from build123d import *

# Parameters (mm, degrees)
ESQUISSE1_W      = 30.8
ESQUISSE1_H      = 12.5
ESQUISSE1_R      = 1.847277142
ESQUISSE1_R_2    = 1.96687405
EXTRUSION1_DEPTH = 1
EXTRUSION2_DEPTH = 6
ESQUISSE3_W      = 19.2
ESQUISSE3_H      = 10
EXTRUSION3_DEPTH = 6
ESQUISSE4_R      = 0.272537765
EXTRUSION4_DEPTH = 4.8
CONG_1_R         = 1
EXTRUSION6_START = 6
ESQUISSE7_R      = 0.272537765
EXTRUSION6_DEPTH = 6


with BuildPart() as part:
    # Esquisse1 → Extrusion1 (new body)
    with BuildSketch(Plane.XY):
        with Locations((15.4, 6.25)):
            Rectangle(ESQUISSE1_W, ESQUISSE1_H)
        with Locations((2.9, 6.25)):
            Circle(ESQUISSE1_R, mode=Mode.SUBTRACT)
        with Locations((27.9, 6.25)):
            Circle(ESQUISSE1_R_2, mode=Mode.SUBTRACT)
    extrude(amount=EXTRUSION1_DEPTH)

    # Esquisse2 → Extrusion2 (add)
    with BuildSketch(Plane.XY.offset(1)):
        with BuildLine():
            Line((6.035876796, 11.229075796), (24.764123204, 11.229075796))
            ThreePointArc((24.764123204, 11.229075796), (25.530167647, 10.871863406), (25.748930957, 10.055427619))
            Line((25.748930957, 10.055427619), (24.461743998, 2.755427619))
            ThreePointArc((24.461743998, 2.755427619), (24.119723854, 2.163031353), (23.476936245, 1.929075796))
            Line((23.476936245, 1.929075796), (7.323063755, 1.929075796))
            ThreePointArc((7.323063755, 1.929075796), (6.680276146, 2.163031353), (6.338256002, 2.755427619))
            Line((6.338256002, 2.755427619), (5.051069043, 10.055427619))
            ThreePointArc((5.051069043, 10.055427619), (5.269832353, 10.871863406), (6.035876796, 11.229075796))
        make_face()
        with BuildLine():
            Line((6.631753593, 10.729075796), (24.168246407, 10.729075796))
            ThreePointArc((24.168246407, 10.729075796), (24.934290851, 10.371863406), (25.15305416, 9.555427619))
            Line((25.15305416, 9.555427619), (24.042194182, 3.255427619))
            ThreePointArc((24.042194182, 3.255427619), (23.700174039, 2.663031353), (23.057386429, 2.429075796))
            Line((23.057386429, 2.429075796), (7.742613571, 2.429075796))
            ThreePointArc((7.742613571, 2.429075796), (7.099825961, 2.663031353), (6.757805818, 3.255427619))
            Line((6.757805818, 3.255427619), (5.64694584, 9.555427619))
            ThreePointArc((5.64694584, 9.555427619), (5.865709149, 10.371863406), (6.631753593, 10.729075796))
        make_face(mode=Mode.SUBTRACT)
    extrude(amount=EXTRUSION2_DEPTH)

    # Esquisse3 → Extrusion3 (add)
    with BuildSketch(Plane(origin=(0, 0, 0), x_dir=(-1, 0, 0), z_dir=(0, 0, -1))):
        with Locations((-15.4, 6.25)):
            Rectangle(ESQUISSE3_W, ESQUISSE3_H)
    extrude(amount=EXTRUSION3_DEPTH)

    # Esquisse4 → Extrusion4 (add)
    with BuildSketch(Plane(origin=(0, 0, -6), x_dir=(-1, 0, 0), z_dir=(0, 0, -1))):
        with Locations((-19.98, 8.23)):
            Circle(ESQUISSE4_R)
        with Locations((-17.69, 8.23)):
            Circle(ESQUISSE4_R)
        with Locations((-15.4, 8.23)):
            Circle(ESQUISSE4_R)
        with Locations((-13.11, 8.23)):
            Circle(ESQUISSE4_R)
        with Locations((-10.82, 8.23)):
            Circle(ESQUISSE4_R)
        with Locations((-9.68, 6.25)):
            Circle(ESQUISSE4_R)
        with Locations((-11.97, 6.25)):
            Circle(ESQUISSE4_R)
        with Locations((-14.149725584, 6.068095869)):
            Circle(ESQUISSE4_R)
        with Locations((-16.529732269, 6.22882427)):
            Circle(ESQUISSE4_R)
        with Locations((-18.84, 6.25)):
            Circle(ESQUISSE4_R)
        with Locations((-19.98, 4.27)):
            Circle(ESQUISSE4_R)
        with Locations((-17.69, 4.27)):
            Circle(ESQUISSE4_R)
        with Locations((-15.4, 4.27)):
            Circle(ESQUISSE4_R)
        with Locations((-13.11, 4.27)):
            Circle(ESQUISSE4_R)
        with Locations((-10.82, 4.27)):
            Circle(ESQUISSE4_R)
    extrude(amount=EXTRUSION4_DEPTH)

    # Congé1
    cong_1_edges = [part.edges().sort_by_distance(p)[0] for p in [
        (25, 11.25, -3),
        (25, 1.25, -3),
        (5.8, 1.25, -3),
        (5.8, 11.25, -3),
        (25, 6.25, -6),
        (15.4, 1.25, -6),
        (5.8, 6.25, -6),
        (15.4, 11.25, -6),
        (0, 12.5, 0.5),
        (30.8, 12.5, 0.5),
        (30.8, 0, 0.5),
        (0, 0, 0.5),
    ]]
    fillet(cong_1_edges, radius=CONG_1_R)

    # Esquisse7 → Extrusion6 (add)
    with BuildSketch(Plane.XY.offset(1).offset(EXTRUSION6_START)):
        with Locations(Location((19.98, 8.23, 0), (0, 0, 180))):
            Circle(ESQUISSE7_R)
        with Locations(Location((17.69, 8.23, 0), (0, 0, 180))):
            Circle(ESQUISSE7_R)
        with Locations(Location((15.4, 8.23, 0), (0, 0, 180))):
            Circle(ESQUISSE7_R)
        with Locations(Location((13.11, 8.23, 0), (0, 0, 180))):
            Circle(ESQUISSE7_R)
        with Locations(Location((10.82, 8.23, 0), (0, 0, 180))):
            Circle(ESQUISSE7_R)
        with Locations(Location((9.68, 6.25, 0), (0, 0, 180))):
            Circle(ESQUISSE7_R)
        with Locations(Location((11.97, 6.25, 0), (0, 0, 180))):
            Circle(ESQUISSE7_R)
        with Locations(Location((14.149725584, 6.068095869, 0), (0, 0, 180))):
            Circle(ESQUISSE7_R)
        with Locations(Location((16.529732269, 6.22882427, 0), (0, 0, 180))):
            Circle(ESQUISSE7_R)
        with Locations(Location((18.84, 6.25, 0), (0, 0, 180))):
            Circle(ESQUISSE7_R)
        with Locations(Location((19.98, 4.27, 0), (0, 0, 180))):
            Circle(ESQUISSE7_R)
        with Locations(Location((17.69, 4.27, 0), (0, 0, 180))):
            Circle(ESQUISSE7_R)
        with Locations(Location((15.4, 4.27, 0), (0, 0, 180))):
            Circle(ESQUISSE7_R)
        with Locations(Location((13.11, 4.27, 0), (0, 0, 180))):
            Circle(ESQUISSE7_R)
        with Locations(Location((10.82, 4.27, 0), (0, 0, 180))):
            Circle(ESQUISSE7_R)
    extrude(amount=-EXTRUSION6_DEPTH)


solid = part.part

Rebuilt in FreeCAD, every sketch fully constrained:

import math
import FreeCAD as App
import Part
import Sketcher
Q = App.Units.Quantity


def edges_at(feature, points):
    """Names of the edges that pass closest to the given points."""
    edges = feature.Shape.Edges
    near = lambda p: min(range(len(edges)), key=lambda i: edges[i].distToShape(Part.Vertex(*p))[0])
    return sorted({f"Edge{near(p) + 1}" for p in points})

doc = App.newDocument("Part")
params = doc.addObject("Spreadsheet::Sheet", "Params")
for row, (alias, value) in enumerate([
    ("sketch1_width", "30.8 mm"),
    ("sketch1_height", "12.5 mm"),
    ("pad1_length", "1 mm"),
    ("sketch2_radius", "1 mm"),
    ("pad2_length", "6 mm"),
    ("sketch3_height", "10 mm"),
    ("sketch3_width", "19.2 mm"),
    ("pad3_length", "6 mm"),
    ("pad4_length", "4.8 mm"),
    ("fillet_radius", "1 mm"),
    ("pad5_length", "6 mm"),
], start=1):
    params.set(f"A{row}", alias)
    params.set(f"B{row}", "=" + value)
    params.setAlias(f"B{row}", alias)

body = doc.addObject("PartDesign::Body", "Body")

# Sketch on XY plane
sketch1 = doc.addObject("Sketcher::SketchObject", "Sketch")
body.addObject(sketch1)
sketch1.AttachmentSupport = (doc.XY_Plane, [""])
sketch1.MapMode = "FlatFace"
sketch1.addGeometry(Part.LineSegment(App.Vector(0, 12.5, 0), App.Vector(0, 0, 0)), False)
sketch1.addGeometry(Part.LineSegment(App.Vector(0, 0, 0), App.Vector(30.8, 0, 0)), False)
sketch1.addGeometry(Part.LineSegment(App.Vector(30.8, 0, 0), App.Vector(30.8, 12.5, 0)), False)
sketch1.addGeometry(Part.LineSegment(App.Vector(30.8, 12.5, 0), App.Vector(0, 12.5, 0)), False)
sketch1.addGeometry(Part.Circle(App.Vector(2.9, 6.2, 0), App.Vector(0, 0, 1), 1.8), False)
sketch1.addGeometry(Part.Circle(App.Vector(27.9, 6.2, 0), App.Vector(0, 0, 1), 2), False)
sketch1.addConstraint(Sketcher.Constraint("Coincident", 0, 2, 1, 1))
sketch1.addConstraint(Sketcher.Constraint("Coincident", 1, 2, 2, 1))
sketch1.addConstraint(Sketcher.Constraint("Coincident", 2, 2, 3, 1))
sketch1.addConstraint(Sketcher.Constraint("Coincident", 3, 2, 0, 1))
sketch1.addConstraint(Sketcher.Constraint("Vertical", 0))
sketch1.addConstraint(Sketcher.Constraint("Horizontal", 1))
sketch1.addConstraint(Sketcher.Constraint("Vertical", 2))
sketch1.addConstraint(Sketcher.Constraint("Horizontal", 3))
sketch1.addConstraint(Sketcher.Constraint("Coincident", 0, 2, -1, 1))
sketch1.addConstraint(Sketcher.Constraint("Horizontal", 4, 3, 5, 3))
sketch1.addConstraint(Sketcher.Constraint("DistanceX", 1, 1, 1, 2, 30.8))
sketch1.addConstraint(Sketcher.Constraint("DistanceY", 0, 2, 0, 1, 12.5))
sketch1.addConstraint(Sketcher.Constraint("DistanceX", 4, 3, 5, 3, 25.0))
sketch1.addConstraint(Sketcher.Constraint("DistanceX", -1, 1, 4, 3, 2.9))
sketch1.addConstraint(Sketcher.Constraint("Diameter", 5, 3.933748))
sketch1.addConstraint(Sketcher.Constraint("DistanceY", -1, 1, 4, 3, 6.25))
sketch1.addConstraint(Sketcher.Constraint("Diameter", 4, 3.694554))
sketch1.setExpression("Constraints[10]", "Params.sketch1_width")
sketch1.setExpression("Constraints[11]", "Params.sketch1_height")
pad1 = doc.addObject("PartDesign::Pad", "Pad")
body.addObject(pad1)
pad1.Profile = sketch1
pad1.setExpression("Length", "Params.pad1_length")

# Sketch on XY plane
sketch2 = doc.addObject("Sketcher::SketchObject", "Sketch001")
body.addObject(sketch2)
sketch2.AttachmentSupport = (doc.XY_Plane, [""])
sketch2.MapMode = "FlatFace"
sketch2.AttachmentOffset = App.Placement(App.Vector(0, 0, 1), App.Rotation())
sketch2.addGeometry(Part.LineSegment(App.Vector(24.8, 11.2, 0), App.Vector(6, 11.2, 0)), False)
sketch2.addGeometry(Part.ArcOfCircle(Part.Circle(App.Vector(6, 10.2, 0), App.Vector(0, 0, 1), 1), math.radians(90), math.radians(190)), False)
sketch2.addGeometry(Part.LineSegment(App.Vector(5.1, 10.1, 0), App.Vector(6.3, 2.8, 0)), False)
sketch2.addGeometry(Part.ArcOfCircle(Part.Circle(App.Vector(7.3, 2.9, 0), App.Vector(0, 0, 1), 1), math.radians(-170), math.radians(-90)), False)
sketch2.addGeometry(Part.LineSegment(App.Vector(7.3, 1.9, 0), App.Vector(23.5, 1.9, 0)), False)
sketch2.addGeometry(Part.ArcOfCircle(Part.Circle(App.Vector(23.5, 2.9, 0), App.Vector(0, 0, 1), 1), math.radians(-90), math.radians(-10)), False)
sketch2.addGeometry(Part.LineSegment(App.Vector(24.5, 2.8, 0), App.Vector(25.7, 10.1, 0)), False)
sketch2.addGeometry(Part.ArcOfCircle(Part.Circle(App.Vector(24.8, 10.2, 0), App.Vector(0, 0, 1), 1), math.radians(-10), math.radians(90)), False)
sketch2.addGeometry(Part.LineSegment(App.Vector(6.6, 10.7, 0), App.Vector(24.2, 10.7, 0)), False)
sketch2.addGeometry(Part.ArcOfCircle(Part.Circle(App.Vector(24.2, 9.7, 0), App.Vector(0, 0, 1), 1), math.radians(-10), math.radians(90)), False)
sketch2.addGeometry(Part.LineSegment(App.Vector(25.2, 9.6, 0), App.Vector(24, 3.3, 0)), False)
sketch2.addGeometry(Part.ArcOfCircle(Part.Circle(App.Vector(23.1, 3.4, 0), App.Vector(0, 0, 1), 1), math.radians(-90), math.radians(-10)), False)
sketch2.addGeometry(Part.LineSegment(App.Vector(23.1, 2.4, 0), App.Vector(7.7, 2.4, 0)), False)
sketch2.addGeometry(Part.ArcOfCircle(Part.Circle(App.Vector(7.7, 3.4, 0), App.Vector(0, 0, 1), 1), math.radians(-170), math.radians(-90)), False)
sketch2.addGeometry(Part.LineSegment(App.Vector(6.8, 3.3, 0), App.Vector(5.6, 9.6, 0)), False)
sketch2.addGeometry(Part.ArcOfCircle(Part.Circle(App.Vector(6.6, 9.7, 0), App.Vector(0, 0, 1), 1), math.radians(90), math.radians(190)), False)
sketch2.addConstraint(Sketcher.Constraint("Tangent", 0, 2, 1, 1))
sketch2.addConstraint(Sketcher.Constraint("Tangent", 1, 2, 2, 1))
sketch2.addConstraint(Sketcher.Constraint("Tangent", 2, 2, 3, 1))
sketch2.addConstraint(Sketcher.Constraint("Tangent", 3, 2, 4, 1))
sketch2.addConstraint(Sketcher.Constraint("Tangent", 4, 2, 5, 1))
sketch2.addConstraint(Sketcher.Constraint("Tangent", 5, 2, 6, 1))
sketch2.addConstraint(Sketcher.Constraint("Tangent", 6, 2, 7, 1))
sketch2.addConstraint(Sketcher.Constraint("Tangent", 7, 2, 0, 1))
sketch2.addConstraint(Sketcher.Constraint("Tangent", 8, 2, 9, 2))
sketch2.addConstraint(Sketcher.Constraint("Tangent", 9, 1, 10, 1))
sketch2.addConstraint(Sketcher.Constraint("Tangent", 10, 2, 11, 2))
sketch2.addConstraint(Sketcher.Constraint("Tangent", 11, 1, 12, 1))
sketch2.addConstraint(Sketcher.Constraint("Tangent", 12, 2, 13, 2))
sketch2.addConstraint(Sketcher.Constraint("Tangent", 13, 1, 14, 1))
sketch2.addConstraint(Sketcher.Constraint("Tangent", 14, 2, 15, 2))
sketch2.addConstraint(Sketcher.Constraint("Tangent", 15, 1, 8, 1))
sketch2.addConstraint(Sketcher.Constraint("Horizontal", 0))
sketch2.addConstraint(Sketcher.Constraint("Horizontal", 4))
sketch2.addConstraint(Sketcher.Constraint("Horizontal", 8))
sketch2.addConstraint(Sketcher.Constraint("Horizontal", 12))
sketch2.addConstraint(Sketcher.Constraint("Equal", 1, 3))
sketch2.addConstraint(Sketcher.Constraint("Equal", 3, 5))
sketch2.addConstraint(Sketcher.Constraint("Equal", 5, 7))
sketch2.addConstraint(Sketcher.Constraint("Equal", 7, 9))
sketch2.addConstraint(Sketcher.Constraint("Equal", 9, 11))
sketch2.addConstraint(Sketcher.Constraint("Equal", 11, 13))
sketch2.addConstraint(Sketcher.Constraint("Equal", 13, 15))
sketch2.addConstraint(Sketcher.Constraint("Parallel", 6, 10))
sketch2.addConstraint(Sketcher.Constraint("Parallel", 2, 14))
sketch2.addConstraint(Sketcher.Constraint("Horizontal", 2, 2, 5, 2))
sketch2.addConstraint(Sketcher.Constraint("Radius", 1, 1.0))
sketch2.addConstraint(Sketcher.Constraint("Angle", 2, Q("-80 deg")))
sketch2.addConstraint(Sketcher.Constraint("DistanceY", 3, 3, 1, 3, 7.3))
sketch2.addConstraint(Sketcher.Constraint("DistanceY", 9, 3, 7, 3, 0.5))
sketch2.addConstraint(Sketcher.Constraint("DistanceY", 5, 3, 11, 3, 0.5))
sketch2.addConstraint(Sketcher.Constraint("DistanceX", 0, 2, 0, 1, 18.728246))
sketch2.addConstraint(Sketcher.Constraint("DistanceX", 8, 1, 8, 2, 17.536493))
sketch2.addConstraint(Sketcher.Constraint("DistanceX", -1, 1, 1, 2, 5.051069))
sketch2.addConstraint(Sketcher.Constraint("DistanceX", 5, 3, 9, 3, 0.69131))
sketch2.addConstraint(Sketcher.Constraint("DistanceY", -1, 1, 1, 3, 10.229076))
sketch2.setExpression("Constraints[30]", "Params.sketch2_radius")
pad2 = doc.addObject("PartDesign::Pad", "Pad001")
body.addObject(pad2)
pad2.Profile = sketch2
pad2.setExpression("Length", "Params.pad2_length")

# Sketch on XY plane
sketch3 = doc.addObject("Sketcher::SketchObject", "Sketch002")
body.addObject(sketch3)
sketch3.AttachmentSupport = (doc.XY_Plane, [""])
sketch3.MapMode = "FlatFace"
sketch3.addGeometry(Part.LineSegment(App.Vector(25, 11, 0), App.Vector(25, 1, 0)), False)
sketch3.addGeometry(Part.LineSegment(App.Vector(25, 1, 0), App.Vector(6, 1, 0)), False)
sketch3.addGeometry(Part.LineSegment(App.Vector(6, 1, 0), App.Vector(6, 11, 0)), False)
sketch3.addGeometry(Part.LineSegment(App.Vector(6, 11, 0), App.Vector(25, 11, 0)), False)
sketch3.addConstraint(Sketcher.Constraint("Coincident", 0, 2, 1, 1))
sketch3.addConstraint(Sketcher.Constraint("Coincident", 1, 2, 2, 1))
sketch3.addConstraint(Sketcher.Constraint("Coincident", 2, 2, 3, 1))
sketch3.addConstraint(Sketcher.Constraint("Coincident", 3, 2, 0, 1))
sketch3.addConstraint(Sketcher.Constraint("Vertical", 0))
sketch3.addConstraint(Sketcher.Constraint("Horizontal", 1))
sketch3.addConstraint(Sketcher.Constraint("Vertical", 2))
sketch3.addConstraint(Sketcher.Constraint("Horizontal", 3))
sketch3.addConstraint(Sketcher.Constraint("DistanceY", 0, 2, 0, 1, 10.0))
sketch3.addConstraint(Sketcher.Constraint("DistanceX", 1, 2, 1, 1, 19.2))
sketch3.addConstraint(Sketcher.Constraint("DistanceX", -1, 1, 0, 2, 25.0))
sketch3.addConstraint(Sketcher.Constraint("DistanceY", -1, 1, 0, 2, 1.25))
sketch3.setExpression("Constraints[8]", "Params.sketch3_height")
sketch3.setExpression("Constraints[9]", "Params.sketch3_width")
pad3 = doc.addObject("PartDesign::Pad", "Pad002")
body.addObject(pad3)
pad3.Profile = sketch3
pad3.setExpression("Length", "Params.pad3_length")
pad3.Reversed = True

# Sketch on XY plane
sketch4 = doc.addObject("Sketcher::SketchObject", "Sketch003")
body.addObject(sketch4)
sketch4.AttachmentSupport = (doc.XY_Plane, [""])
sketch4.MapMode = "FlatFace"
sketch4.AttachmentOffset = App.Placement(App.Vector(0, 0, -6), App.Rotation())
sketch4.addGeometry(Part.Circle(App.Vector(19.98, 8.23, 0), App.Vector(0, 0, 1), 0.27), False)
sketch4.addGeometry(Part.Circle(App.Vector(17.69, 8.23, 0), App.Vector(0, 0, 1), 0.27), False)
sketch4.addGeometry(Part.Circle(App.Vector(15.4, 8.23, 0), App.Vector(0, 0, 1), 0.27), False)
sketch4.addGeometry(Part.Circle(App.Vector(13.11, 8.23, 0), App.Vector(0, 0, 1), 0.27), False)
sketch4.addGeometry(Part.Circle(App.Vector(10.82, 8.23, 0), App.Vector(0, 0, 1), 0.27), False)
sketch4.addGeometry(Part.Circle(App.Vector(9.68, 6.25, 0), App.Vector(0, 0, 1), 0.27), False)
sketch4.addGeometry(Part.Circle(App.Vector(11.97, 6.25, 0), App.Vector(0, 0, 1), 0.27), False)
sketch4.addGeometry(Part.Circle(App.Vector(14.15, 6.07, 0), App.Vector(0, 0, 1), 0.27), False)
sketch4.addGeometry(Part.Circle(App.Vector(16.53, 6.23, 0), App.Vector(0, 0, 1), 0.27), False)
sketch4.addGeometry(Part.Circle(App.Vector(18.84, 6.25, 0), App.Vector(0, 0, 1), 0.27), False)
sketch4.addGeometry(Part.Circle(App.Vector(19.98, 4.27, 0), App.Vector(0, 0, 1), 0.27), False)
sketch4.addGeometry(Part.Circle(App.Vector(17.69, 4.27, 0), App.Vector(0, 0, 1), 0.27), False)
sketch4.addGeometry(Part.Circle(App.Vector(15.4, 4.27, 0), App.Vector(0, 0, 1), 0.27), False)
sketch4.addGeometry(Part.Circle(App.Vector(13.11, 4.27, 0), App.Vector(0, 0, 1), 0.27), False)
sketch4.addGeometry(Part.Circle(App.Vector(10.82, 4.27, 0), App.Vector(0, 0, 1), 0.27), False)
sketch4.addConstraint(Sketcher.Constraint("Equal", 0, 1))
sketch4.addConstraint(Sketcher.Constraint("Equal", 1, 2))
sketch4.addConstraint(Sketcher.Constraint("Equal", 2, 3))
sketch4.addConstraint(Sketcher.Constraint("Equal", 3, 4))
sketch4.addConstraint(Sketcher.Constraint("Equal", 4, 5))
sketch4.addConstraint(Sketcher.Constraint("Equal", 5, 6))
sketch4.addConstraint(Sketcher.Constraint("Equal", 6, 7))
sketch4.addConstraint(Sketcher.Constraint("Equal", 7, 8))
sketch4.addConstraint(Sketcher.Constraint("Equal", 8, 9))
sketch4.addConstraint(Sketcher.Constraint("Equal", 9, 10))
sketch4.addConstraint(Sketcher.Constraint("Equal", 10, 11))
sketch4.addConstraint(Sketcher.Constraint("Equal", 11, 12))
sketch4.addConstraint(Sketcher.Constraint("Equal", 12, 13))
sketch4.addConstraint(Sketcher.Constraint("Equal", 13, 14))
sketch4.addConstraint(Sketcher.Constraint("Horizontal", 0, 3, 1, 3))
sketch4.addConstraint(Sketcher.Constraint("Horizontal", 1, 3, 2, 3))
sketch4.addConstraint(Sketcher.Constraint("Horizontal", 2, 3, 3, 3))
sketch4.addConstraint(Sketcher.Constraint("Horizontal", 3, 3, 4, 3))
sketch4.addConstraint(Sketcher.Constraint("Horizontal", 5, 3, 6, 3))
sketch4.addConstraint(Sketcher.Constraint("Horizontal", 6, 3, 9, 3))
sketch4.addConstraint(Sketcher.Constraint("Horizontal", 10, 3, 11, 3))
sketch4.addConstraint(Sketcher.Constraint("Horizontal", 11, 3, 12, 3))
sketch4.addConstraint(Sketcher.Constraint("Horizontal", 12, 3, 13, 3))
sketch4.addConstraint(Sketcher.Constraint("Horizontal", 13, 3, 14, 3))
sketch4.addConstraint(Sketcher.Constraint("Vertical", 0, 3, 10, 3))
sketch4.addConstraint(Sketcher.Constraint("Vertical", 1, 3, 11, 3))
sketch4.addConstraint(Sketcher.Constraint("Vertical", 2, 3, 12, 3))
sketch4.addConstraint(Sketcher.Constraint("Vertical", 3, 3, 13, 3))
sketch4.addConstraint(Sketcher.Constraint("Vertical", 4, 3, 14, 3))
sketch4.addConstraint(Sketcher.Constraint("DistanceX", -1, 1, 2, 3, 15.4))
sketch4.addConstraint(Sketcher.Constraint("DistanceX", 5, 3, 0, 3, 10.3))
sketch4.addConstraint(Sketcher.Constraint("DistanceX", -1, 1, 0, 3, 19.98))
sketch4.addConstraint(Sketcher.Constraint("DistanceY", -1, 1, 0, 3, 8.23))
sketch4.addConstraint(Sketcher.Constraint("DistanceX", -1, 1, 1, 3, 17.69))
sketch4.addConstraint(Sketcher.Constraint("DistanceX", -1, 1, 3, 3, 13.11))
sketch4.addConstraint(Sketcher.Constraint("DistanceX", -1, 1, 4, 3, 10.82))
sketch4.addConstraint(Sketcher.Constraint("DistanceY", -1, 1, 5, 3, 6.25))
sketch4.addConstraint(Sketcher.Constraint("DistanceX", -1, 1, 6, 3, 11.97))
sketch4.addConstraint(Sketcher.Constraint("DistanceX", -1, 1, 9, 3, 18.84))
sketch4.addConstraint(Sketcher.Constraint("DistanceY", -1, 1, 10, 3, 4.27))
sketch4.addConstraint(Sketcher.Constraint("Diameter", 0, 0.545076))
sketch4.addConstraint(Sketcher.Constraint("DistanceY", 7, 3, 8, 3, 0.160728))
sketch4.addConstraint(Sketcher.Constraint("DistanceX", -1, 1, 7, 3, 14.149726))
sketch4.addConstraint(Sketcher.Constraint("DistanceY", -1, 1, 7, 3, 6.068096))
sketch4.addConstraint(Sketcher.Constraint("DistanceX", -1, 1, 8, 3, 16.529732))
pad4 = doc.addObject("PartDesign::Pad", "Pad003")
body.addObject(pad4)
pad4.Profile = sketch4
pad4.setExpression("Length", "Params.pad4_length")
pad4.Reversed = True
doc.recompute()

fillet = doc.addObject("PartDesign::Fillet", "Fillet")
body.addObject(fillet)
fillet.Base = (pad4, edges_at(pad4, [
    (25, 11.25, -3),
    (25, 1.25, -3),
    (5.8, 1.25, -3),
    (5.8, 11.25, -3),
    (25, 6.25, -6),
    (15.4, 1.25, -6),
    (5.8, 6.25, -6),
    (15.4, 11.25, -6),
    (0, 12.5, 0.5),
    (30.8, 12.5, 0.5),
    (30.8, 0, 0.5),
    (0, 0, 0.5),
]))
fillet.setExpression("Radius", "Params.fillet_radius")

# Sketch on XY plane
sketch5 = doc.addObject("Sketcher::SketchObject", "Sketch004")
body.addObject(sketch5)
sketch5.AttachmentSupport = (doc.XY_Plane, [""])
sketch5.MapMode = "FlatFace"
sketch5.AttachmentOffset = App.Placement(App.Vector(0, 0, 7), App.Rotation())
sketch5.addGeometry(Part.Circle(App.Vector(19.98, 8.23, 0), App.Vector(0, 0, 1), 0.27), False)
sketch5.addGeometry(Part.Circle(App.Vector(17.69, 8.23, 0), App.Vector(0, 0, 1), 0.27), False)
sketch5.addGeometry(Part.Circle(App.Vector(15.4, 8.23, 0), App.Vector(0, 0, 1), 0.27), False)
sketch5.addGeometry(Part.Circle(App.Vector(13.11, 8.23, 0), App.Vector(0, 0, 1), 0.27), False)
sketch5.addGeometry(Part.Circle(App.Vector(10.82, 8.23, 0), App.Vector(0, 0, 1), 0.27), False)
sketch5.addGeometry(Part.Circle(App.Vector(9.68, 6.25, 0), App.Vector(0, 0, 1), 0.27), False)
sketch5.addGeometry(Part.Circle(App.Vector(11.97, 6.25, 0), App.Vector(0, 0, 1), 0.27), False)
sketch5.addGeometry(Part.Circle(App.Vector(14.15, 6.07, 0), App.Vector(0, 0, 1), 0.27), False)
sketch5.addGeometry(Part.Circle(App.Vector(16.53, 6.23, 0), App.Vector(0, 0, 1), 0.27), False)
sketch5.addGeometry(Part.Circle(App.Vector(18.84, 6.25, 0), App.Vector(0, 0, 1), 0.27), False)
sketch5.addGeometry(Part.Circle(App.Vector(19.98, 4.27, 0), App.Vector(0, 0, 1), 0.27), False)
sketch5.addGeometry(Part.Circle(App.Vector(17.69, 4.27, 0), App.Vector(0, 0, 1), 0.27), False)
sketch5.addGeometry(Part.Circle(App.Vector(15.4, 4.27, 0), App.Vector(0, 0, 1), 0.27), False)
sketch5.addGeometry(Part.Circle(App.Vector(13.11, 4.27, 0), App.Vector(0, 0, 1), 0.27), False)
sketch5.addGeometry(Part.Circle(App.Vector(10.82, 4.27, 0), App.Vector(0, 0, 1), 0.27), False)
sketch5.addConstraint(Sketcher.Constraint("Equal", 0, 1))
sketch5.addConstraint(Sketcher.Constraint("Equal", 1, 2))
sketch5.addConstraint(Sketcher.Constraint("Equal", 2, 3))
sketch5.addConstraint(Sketcher.Constraint("Equal", 3, 4))
sketch5.addConstraint(Sketcher.Constraint("Equal", 4, 5))
sketch5.addConstraint(Sketcher.Constraint("Equal", 5, 6))
sketch5.addConstraint(Sketcher.Constraint("Equal", 6, 7))
sketch5.addConstraint(Sketcher.Constraint("Equal", 7, 8))
sketch5.addConstraint(Sketcher.Constraint("Equal", 8, 9))
sketch5.addConstraint(Sketcher.Constraint("Equal", 9, 10))
sketch5.addConstraint(Sketcher.Constraint("Equal", 10, 11))
sketch5.addConstraint(Sketcher.Constraint("Equal", 11, 12))
sketch5.addConstraint(Sketcher.Constraint("Equal", 12, 13))
sketch5.addConstraint(Sketcher.Constraint("Equal", 13, 14))
sketch5.addConstraint(Sketcher.Constraint("Horizontal", 0, 3, 1, 3))
sketch5.addConstraint(Sketcher.Constraint("Horizontal", 1, 3, 2, 3))
sketch5.addConstraint(Sketcher.Constraint("Horizontal", 2, 3, 3, 3))
sketch5.addConstraint(Sketcher.Constraint("Horizontal", 3, 3, 4, 3))
sketch5.addConstraint(Sketcher.Constraint("Horizontal", 5, 3, 6, 3))
sketch5.addConstraint(Sketcher.Constraint("Horizontal", 6, 3, 9, 3))
sketch5.addConstraint(Sketcher.Constraint("Horizontal", 10, 3, 11, 3))
sketch5.addConstraint(Sketcher.Constraint("Horizontal", 11, 3, 12, 3))
sketch5.addConstraint(Sketcher.Constraint("Horizontal", 12, 3, 13, 3))
sketch5.addConstraint(Sketcher.Constraint("Horizontal", 13, 3, 14, 3))
sketch5.addConstraint(Sketcher.Constraint("Vertical", 0, 3, 10, 3))
sketch5.addConstraint(Sketcher.Constraint("Vertical", 1, 3, 11, 3))
sketch5.addConstraint(Sketcher.Constraint("Vertical", 2, 3, 12, 3))
sketch5.addConstraint(Sketcher.Constraint("Vertical", 3, 3, 13, 3))
sketch5.addConstraint(Sketcher.Constraint("Vertical", 4, 3, 14, 3))
sketch5.addConstraint(Sketcher.Constraint("DistanceX", -1, 1, 2, 3, 15.4))
sketch5.addConstraint(Sketcher.Constraint("DistanceX", 5, 3, 0, 3, 10.3))
sketch5.addConstraint(Sketcher.Constraint("DistanceX", -1, 1, 0, 3, 19.98))
sketch5.addConstraint(Sketcher.Constraint("DistanceY", -1, 1, 0, 3, 8.23))
sketch5.addConstraint(Sketcher.Constraint("DistanceX", -1, 1, 1, 3, 17.69))
sketch5.addConstraint(Sketcher.Constraint("DistanceX", -1, 1, 3, 3, 13.11))
sketch5.addConstraint(Sketcher.Constraint("DistanceX", -1, 1, 4, 3, 10.82))
sketch5.addConstraint(Sketcher.Constraint("DistanceY", -1, 1, 5, 3, 6.25))
sketch5.addConstraint(Sketcher.Constraint("DistanceX", -1, 1, 6, 3, 11.97))
sketch5.addConstraint(Sketcher.Constraint("DistanceX", -1, 1, 9, 3, 18.84))
sketch5.addConstraint(Sketcher.Constraint("DistanceY", -1, 1, 10, 3, 4.27))
sketch5.addConstraint(Sketcher.Constraint("Diameter", 0, 0.545076))
sketch5.addConstraint(Sketcher.Constraint("DistanceY", 7, 3, 8, 3, 0.160728))
sketch5.addConstraint(Sketcher.Constraint("DistanceX", -1, 1, 7, 3, 14.149726))
sketch5.addConstraint(Sketcher.Constraint("DistanceY", -1, 1, 7, 3, 6.068096))
sketch5.addConstraint(Sketcher.Constraint("DistanceX", -1, 1, 8, 3, 16.529732))
pad5 = doc.addObject("PartDesign::Pad", "Pad004")
body.addObject(pad5)
pad5.Profile = sketch5
pad5.setExpression("Length", "Params.pad5_length")
pad5.Reversed = True

doc.recompute()
